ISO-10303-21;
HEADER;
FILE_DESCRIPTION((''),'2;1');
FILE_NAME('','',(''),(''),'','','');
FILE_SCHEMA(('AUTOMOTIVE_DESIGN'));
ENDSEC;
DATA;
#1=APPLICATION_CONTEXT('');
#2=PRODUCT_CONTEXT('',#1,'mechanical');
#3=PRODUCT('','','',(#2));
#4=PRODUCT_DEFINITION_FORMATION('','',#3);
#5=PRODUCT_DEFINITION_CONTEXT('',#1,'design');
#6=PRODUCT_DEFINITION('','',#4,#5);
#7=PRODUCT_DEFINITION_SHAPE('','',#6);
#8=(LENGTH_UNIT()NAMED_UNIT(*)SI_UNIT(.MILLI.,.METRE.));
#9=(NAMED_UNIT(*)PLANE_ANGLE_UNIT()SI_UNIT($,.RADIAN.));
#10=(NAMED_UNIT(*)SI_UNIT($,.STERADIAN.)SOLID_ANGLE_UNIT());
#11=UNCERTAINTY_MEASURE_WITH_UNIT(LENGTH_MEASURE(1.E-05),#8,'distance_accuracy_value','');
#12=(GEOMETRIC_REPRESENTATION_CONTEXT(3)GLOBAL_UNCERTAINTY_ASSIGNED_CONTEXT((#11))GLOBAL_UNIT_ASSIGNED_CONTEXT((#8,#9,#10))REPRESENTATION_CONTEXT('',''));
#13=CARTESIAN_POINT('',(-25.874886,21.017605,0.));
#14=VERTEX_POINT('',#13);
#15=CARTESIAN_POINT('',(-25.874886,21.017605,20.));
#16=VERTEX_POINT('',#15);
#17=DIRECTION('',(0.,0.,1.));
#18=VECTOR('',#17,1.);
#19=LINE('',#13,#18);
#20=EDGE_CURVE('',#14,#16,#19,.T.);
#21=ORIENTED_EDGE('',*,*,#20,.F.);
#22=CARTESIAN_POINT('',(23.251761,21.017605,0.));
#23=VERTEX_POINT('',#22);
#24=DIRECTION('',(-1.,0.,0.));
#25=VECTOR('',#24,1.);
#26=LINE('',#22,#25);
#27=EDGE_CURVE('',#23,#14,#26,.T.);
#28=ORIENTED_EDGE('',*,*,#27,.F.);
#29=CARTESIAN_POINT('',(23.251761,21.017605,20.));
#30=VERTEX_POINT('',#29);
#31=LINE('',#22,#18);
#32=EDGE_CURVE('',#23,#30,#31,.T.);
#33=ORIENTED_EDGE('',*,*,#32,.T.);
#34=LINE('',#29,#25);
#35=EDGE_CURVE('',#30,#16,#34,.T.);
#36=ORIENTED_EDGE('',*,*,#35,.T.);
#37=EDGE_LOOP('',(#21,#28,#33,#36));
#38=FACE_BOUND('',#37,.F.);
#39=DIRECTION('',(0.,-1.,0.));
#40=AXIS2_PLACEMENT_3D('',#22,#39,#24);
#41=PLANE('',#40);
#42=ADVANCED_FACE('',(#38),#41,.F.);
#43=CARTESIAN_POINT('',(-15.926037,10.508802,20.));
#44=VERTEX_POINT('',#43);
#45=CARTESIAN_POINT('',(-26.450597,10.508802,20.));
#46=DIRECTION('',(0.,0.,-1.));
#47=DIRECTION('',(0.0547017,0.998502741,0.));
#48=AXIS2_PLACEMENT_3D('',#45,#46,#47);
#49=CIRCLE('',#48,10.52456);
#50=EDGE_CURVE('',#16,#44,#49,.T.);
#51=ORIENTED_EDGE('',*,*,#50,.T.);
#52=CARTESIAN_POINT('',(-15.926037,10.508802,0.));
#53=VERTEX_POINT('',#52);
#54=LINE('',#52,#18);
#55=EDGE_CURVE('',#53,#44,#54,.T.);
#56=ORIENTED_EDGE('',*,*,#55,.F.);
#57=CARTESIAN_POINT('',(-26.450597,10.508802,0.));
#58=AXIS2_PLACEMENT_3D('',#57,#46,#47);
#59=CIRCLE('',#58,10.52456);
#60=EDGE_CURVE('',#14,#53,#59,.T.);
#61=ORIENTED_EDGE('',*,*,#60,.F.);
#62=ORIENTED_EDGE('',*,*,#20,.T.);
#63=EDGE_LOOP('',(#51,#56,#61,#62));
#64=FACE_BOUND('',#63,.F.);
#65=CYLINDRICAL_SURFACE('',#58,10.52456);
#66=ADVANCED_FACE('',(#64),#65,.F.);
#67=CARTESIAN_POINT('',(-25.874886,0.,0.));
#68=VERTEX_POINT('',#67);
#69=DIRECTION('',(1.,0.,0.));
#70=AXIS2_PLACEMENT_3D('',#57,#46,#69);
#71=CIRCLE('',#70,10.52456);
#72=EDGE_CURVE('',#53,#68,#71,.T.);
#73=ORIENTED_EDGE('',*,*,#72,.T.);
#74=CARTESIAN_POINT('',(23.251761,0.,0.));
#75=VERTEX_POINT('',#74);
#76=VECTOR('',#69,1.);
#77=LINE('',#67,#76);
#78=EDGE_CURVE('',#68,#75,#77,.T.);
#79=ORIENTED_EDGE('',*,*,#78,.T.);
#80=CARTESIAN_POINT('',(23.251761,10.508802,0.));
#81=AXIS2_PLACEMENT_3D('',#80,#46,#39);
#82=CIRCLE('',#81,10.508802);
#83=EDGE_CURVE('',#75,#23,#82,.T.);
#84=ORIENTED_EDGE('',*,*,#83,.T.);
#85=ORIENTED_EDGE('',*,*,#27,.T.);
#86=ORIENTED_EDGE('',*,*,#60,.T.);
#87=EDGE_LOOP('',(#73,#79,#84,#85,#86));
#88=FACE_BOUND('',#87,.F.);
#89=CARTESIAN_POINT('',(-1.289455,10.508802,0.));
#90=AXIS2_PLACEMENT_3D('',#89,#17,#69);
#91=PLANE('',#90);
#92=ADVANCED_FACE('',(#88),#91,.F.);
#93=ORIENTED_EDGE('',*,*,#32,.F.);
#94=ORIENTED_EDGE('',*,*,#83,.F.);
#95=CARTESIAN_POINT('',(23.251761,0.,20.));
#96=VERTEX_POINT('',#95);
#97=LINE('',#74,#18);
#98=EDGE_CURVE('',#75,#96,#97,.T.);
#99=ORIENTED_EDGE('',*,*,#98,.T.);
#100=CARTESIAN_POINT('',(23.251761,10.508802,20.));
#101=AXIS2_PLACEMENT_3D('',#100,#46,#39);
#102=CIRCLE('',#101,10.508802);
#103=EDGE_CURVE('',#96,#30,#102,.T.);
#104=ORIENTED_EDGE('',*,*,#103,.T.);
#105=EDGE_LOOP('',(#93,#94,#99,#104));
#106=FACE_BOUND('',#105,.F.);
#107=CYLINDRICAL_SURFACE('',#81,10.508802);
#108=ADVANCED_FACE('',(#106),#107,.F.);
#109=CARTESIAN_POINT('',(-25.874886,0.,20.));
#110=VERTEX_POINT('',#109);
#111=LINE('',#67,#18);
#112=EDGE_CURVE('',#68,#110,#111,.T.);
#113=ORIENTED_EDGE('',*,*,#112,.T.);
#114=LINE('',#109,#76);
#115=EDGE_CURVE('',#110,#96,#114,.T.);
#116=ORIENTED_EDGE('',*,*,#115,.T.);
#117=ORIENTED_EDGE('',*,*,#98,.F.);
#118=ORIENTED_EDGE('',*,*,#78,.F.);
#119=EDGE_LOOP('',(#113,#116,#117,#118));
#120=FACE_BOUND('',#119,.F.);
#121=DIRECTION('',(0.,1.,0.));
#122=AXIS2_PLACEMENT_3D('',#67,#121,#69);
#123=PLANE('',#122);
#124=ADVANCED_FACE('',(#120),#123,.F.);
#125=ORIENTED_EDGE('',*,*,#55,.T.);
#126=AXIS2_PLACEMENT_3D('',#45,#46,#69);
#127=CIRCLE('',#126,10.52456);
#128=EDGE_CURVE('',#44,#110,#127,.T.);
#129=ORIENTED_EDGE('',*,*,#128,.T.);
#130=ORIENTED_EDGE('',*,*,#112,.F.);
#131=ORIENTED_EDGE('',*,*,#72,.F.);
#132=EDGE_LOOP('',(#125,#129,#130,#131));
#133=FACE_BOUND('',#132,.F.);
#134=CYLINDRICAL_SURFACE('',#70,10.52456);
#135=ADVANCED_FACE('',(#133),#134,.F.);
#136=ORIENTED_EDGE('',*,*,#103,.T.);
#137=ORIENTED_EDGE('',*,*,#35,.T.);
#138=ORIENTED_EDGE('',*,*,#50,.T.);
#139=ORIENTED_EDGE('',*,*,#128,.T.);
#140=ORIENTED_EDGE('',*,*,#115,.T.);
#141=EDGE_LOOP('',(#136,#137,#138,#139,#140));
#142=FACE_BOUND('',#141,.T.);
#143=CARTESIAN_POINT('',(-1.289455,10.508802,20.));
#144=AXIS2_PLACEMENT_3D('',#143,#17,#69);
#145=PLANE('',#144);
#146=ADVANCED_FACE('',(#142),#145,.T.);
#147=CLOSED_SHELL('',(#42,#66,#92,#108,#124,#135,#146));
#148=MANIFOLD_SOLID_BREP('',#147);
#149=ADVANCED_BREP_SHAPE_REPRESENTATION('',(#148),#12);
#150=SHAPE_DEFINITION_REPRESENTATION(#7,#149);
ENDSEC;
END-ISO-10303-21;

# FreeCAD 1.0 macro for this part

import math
import FreeCAD as App
import Part
import Sketcher
from FreeCAD import Vector
Q = App.Units.Quantity

doc = App.newDocument("Part")
body = doc.addObject("PartDesign::Body", "Body")

# Sketch on XY plane
sketch1 = body.newObject("Sketcher::SketchObject", "Sketch")
sketch1.AttachmentSupport = (doc.getObject("XY_Plane"), [""])
sketch1.MapMode = "FlatFace"
sketch1.addGeometry(Part.LineSegment(Vector(23.251761, 21.017605, 0), Vector(-25.874886, 21.017605, 0)), False)
sketch1.addGeometry(Part.ArcOfCircle(Part.Circle(Vector(-26.450597, 10.508802, 0), Vector(0, 0, 1), 10.52456), math.radians(0), math.radians(86.864258)), False)
sketch1.addGeometry(Part.ArcOfCircle(Part.Circle(Vector(-26.450597, 10.508802, 0), Vector(0, 0, 1), 10.52456), math.radians(-86.864258), math.radians(0)), False)
sketch1.addGeometry(Part.LineSegment(Vector(-25.874886, 0, 0), Vector(23.251761, 0, 0)), False)
sketch1.addGeometry(Part.ArcOfCircle(Part.Circle(Vector(23.251761, 10.508802, 0), Vector(0, 0, 1), 10.508802), math.radians(90), math.radians(270)), False)
sketch1.addConstraint(Sketcher.Constraint("Coincident", 0, 2, 1, 2))
sketch1.addConstraint(Sketcher.Constraint("Tangent", 1, 1, 2, 2))
sketch1.addConstraint(Sketcher.Constraint("Coincident", 2, 1, 3, 1))
sketch1.addConstraint(Sketcher.Constraint("Tangent", 3, 2, 4, 2))
sketch1.addConstraint(Sketcher.Constraint("Tangent", 4, 1, 0, 1))
sketch1.addConstraint(Sketcher.Constraint("Horizontal", 0))
sketch1.addConstraint(Sketcher.Constraint("Horizontal", 3))
sketch1.addConstraint(Sketcher.Constraint("Equal", 1, 2))
sketch1.addConstraint(Sketcher.Constraint("PointOnObject", 2, 1, -1))
sketch1.addConstraint(Sketcher.Constraint("Horizontal", 2, 3, 4, 3))
sketch1.addConstraint(Sketcher.Constraint("Horizontal", 4, 3, 1, 1))
sketch1.addConstraint(Sketcher.Constraint("Radius", 1, Q("10.52456 mm")))
sketch1.addConstraint(Sketcher.Constraint("Radius", 4, Q("10.508802 mm")))
sketch1.addConstraint(Sketcher.Constraint("DistanceX", 0, 2, 0, 1, Q("49.126647 mm")))
sketch1.addConstraint(Sketcher.Constraint("DistanceX", -1, 1, 4, 3, Q("23.251761 mm")))
pad1 = body.newObject("PartDesign::Pad", "Pad")
pad1.Profile = sketch1
pad1.Length = 20

doc.recompute()
